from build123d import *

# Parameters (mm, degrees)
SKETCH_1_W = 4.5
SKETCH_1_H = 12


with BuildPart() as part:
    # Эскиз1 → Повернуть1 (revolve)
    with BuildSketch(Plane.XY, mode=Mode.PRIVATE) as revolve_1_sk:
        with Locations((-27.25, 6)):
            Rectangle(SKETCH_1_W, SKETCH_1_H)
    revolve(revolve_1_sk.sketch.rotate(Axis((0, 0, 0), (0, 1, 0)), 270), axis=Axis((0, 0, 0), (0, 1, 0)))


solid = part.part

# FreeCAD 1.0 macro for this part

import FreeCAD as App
import Part
import Sketcher

V = App.Vector

doc = App.newDocument("Part")
body = doc.addObject("PartDesign::Body", "Body")

# Sketch on XY plane
sketch1 = body.newObject("Sketcher::SketchObject", "Sketch")
sketch1.AttachmentSupport = (doc.getObject("XY_Plane"), [""])
sketch1.MapMode = "FlatFace"
sketch1.addGeometry([
    Part.LineSegment(V(-29.5, 12, 0), V(-29.5, 0, 0)),
    Part.LineSegment(V(-29.5, 0, 0), V(-25, 0, 0)),
    Part.LineSegment(V(-25, 0, 0), V(-25, 12, 0)),
    Part.LineSegment(V(-25, 12, 0), V(-29.5, 12, 0)),
], False)
sketch1.addConstraint([
    Sketcher.Constraint("Coincident", 0, 2, 1, 1),
    Sketcher.Constraint("Coincident", 1, 2, 2, 1),
    Sketcher.Constraint("Coincident", 2, 2, 3, 1),
    Sketcher.Constraint("Coincident", 3, 2, 0, 1),
    Sketcher.Constraint("Vertical", 0),
    Sketcher.Constraint("Horizontal", 1),
    Sketcher.Constraint("Vertical", 2),
    Sketcher.Constraint("Horizontal", 3),
    Sketcher.Constraint("PointOnObject", 0, 2, -1),
    Sketcher.Constraint("DistanceY", 0, 2, 0, 1, 12.0),
    Sketcher.Constraint("DistanceX", 1, 1, 1, 2, 4.5),
    Sketcher.Constraint("DistanceX", 1, 2, -1, 1, 25.0),
])
revolution = body.newObject("PartDesign::Revolution", "Revolution")
revolution.Profile = sketch1
revolution.ReferenceAxis = (sketch1, ["V_Axis"])
revolution.Angle = 360

doc.recompute()
